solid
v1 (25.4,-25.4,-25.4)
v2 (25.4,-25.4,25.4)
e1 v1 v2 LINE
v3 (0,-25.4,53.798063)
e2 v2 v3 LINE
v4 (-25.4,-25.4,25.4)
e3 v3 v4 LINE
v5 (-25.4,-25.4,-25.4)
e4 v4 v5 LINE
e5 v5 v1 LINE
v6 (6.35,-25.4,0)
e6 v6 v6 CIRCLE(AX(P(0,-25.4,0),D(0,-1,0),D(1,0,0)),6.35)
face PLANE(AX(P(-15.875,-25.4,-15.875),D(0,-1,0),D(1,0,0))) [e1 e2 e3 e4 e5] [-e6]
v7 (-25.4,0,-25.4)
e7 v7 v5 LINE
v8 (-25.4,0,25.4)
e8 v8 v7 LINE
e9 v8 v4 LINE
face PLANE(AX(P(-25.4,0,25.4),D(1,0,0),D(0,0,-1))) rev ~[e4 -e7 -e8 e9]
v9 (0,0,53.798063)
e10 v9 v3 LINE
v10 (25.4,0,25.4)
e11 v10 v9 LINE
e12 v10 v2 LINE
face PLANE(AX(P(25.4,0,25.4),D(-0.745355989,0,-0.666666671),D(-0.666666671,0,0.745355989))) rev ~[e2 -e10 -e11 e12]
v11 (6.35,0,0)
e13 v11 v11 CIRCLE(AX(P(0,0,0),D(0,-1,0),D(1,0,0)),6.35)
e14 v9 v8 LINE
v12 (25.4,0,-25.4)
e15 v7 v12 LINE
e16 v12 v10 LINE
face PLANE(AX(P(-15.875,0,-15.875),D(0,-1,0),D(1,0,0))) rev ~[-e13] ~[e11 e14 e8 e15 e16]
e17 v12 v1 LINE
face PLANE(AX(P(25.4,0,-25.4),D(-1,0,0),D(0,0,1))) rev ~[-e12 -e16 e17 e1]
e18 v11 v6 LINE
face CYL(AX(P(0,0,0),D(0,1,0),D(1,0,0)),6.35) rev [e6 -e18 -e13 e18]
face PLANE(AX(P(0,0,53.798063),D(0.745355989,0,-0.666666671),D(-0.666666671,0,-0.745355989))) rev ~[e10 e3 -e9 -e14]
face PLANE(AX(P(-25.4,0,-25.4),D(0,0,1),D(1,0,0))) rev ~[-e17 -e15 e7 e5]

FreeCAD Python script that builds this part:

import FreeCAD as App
import Part
import Sketcher
from FreeCAD import Vector
Q = App.Units.Quantity


def add_polygon(sketch, points):
    """Adds a closed chain of lines whose ends are joined by coincident constraints."""
    first, n = sketch.GeometryCount, len(points)
    for a, b in zip(points, points[1:] + points[:1]):
        sketch.addGeometry(Part.LineSegment(App.Vector(*a, 0), App.Vector(*b, 0)), False)
    for i in range(n):
        sketch.addConstraint(Sketcher.Constraint("Coincident", first + i, 2, first + (i + 1) % n, 1))

doc = App.newDocument("Part")
body = doc.addObject("PartDesign::Body", "Body")

# Sketch on XZ plane
sketch1 = body.newObject("Sketcher::SketchObject", "Sketch")
sketch1.AttachmentSupport = (doc.getObject("XZ_Plane"), [""])
sketch1.MapMode = "FlatFace"
add_polygon(sketch1, [(-25, -25), (25, -25), (25, 25), (0, 54), (-25, 25)])  # lines 0-4
sketch1.addGeometry(Part.Circle(Vector(0, 0, 0), Vector(0, 0, 1), 6), False)  # 5
sketch1.addConstraint([
    Sketcher.Constraint("Horizontal", 0),
    Sketcher.Constraint("Vertical", 1),
    Sketcher.Constraint("Vertical", 4),
    Sketcher.Constraint("Coincident", 5, 3, -1, 1),
    Sketcher.Constraint("Symmetric", 0, 2, 3, 2, -1, 1),
    Sketcher.Constraint("PointOnObject", 2, 2, -2),
    Sketcher.Constraint("Horizontal", 1, 2, 3, 2),
    Sketcher.Constraint("Equal", 0, 1),
    Sketcher.Constraint("Diameter", 5, Q("0.5 in")),
    Sketcher.Constraint("DistanceX", 0, 1, 0, 2, Q("2 in")),
    Sketcher.Constraint("Distance", 2, Q("1.5 in")),
])
pad1 = body.newObject("PartDesign::Pad", "Pad")
pad1.Profile = sketch1
pad1.Length = Q("1 in")

doc.recompute()
